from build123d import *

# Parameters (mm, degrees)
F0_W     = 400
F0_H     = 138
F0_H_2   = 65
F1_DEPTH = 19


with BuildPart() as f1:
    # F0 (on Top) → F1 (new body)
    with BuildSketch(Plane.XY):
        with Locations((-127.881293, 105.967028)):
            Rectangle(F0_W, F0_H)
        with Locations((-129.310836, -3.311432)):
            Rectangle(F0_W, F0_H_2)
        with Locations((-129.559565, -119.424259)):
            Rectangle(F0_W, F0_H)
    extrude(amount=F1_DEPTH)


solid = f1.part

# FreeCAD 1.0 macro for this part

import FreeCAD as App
import Part
import Sketcher
from FreeCAD import Vector


def add_polygon(sketch, points):
    """Adds a closed chain of lines whose ends are joined by coincident constraints."""
    first, n = sketch.GeometryCount, len(points)
    for a, b in zip(points, points[1:] + points[:1]):
        sketch.addGeometry(Part.LineSegment(App.Vector(*a, 0), App.Vector(*b, 0)), False)
    for i in range(n):
        sketch.addConstraint(Sketcher.Constraint("Coincident", first + i, 2, first + (i + 1) % n, 1))

doc = App.newDocument("Part")
params = doc.addObject("Spreadsheet::Sheet", "Params")
for row, (alias, value) in enumerate([
    ("sketch1_width", "400 mm"),
    ("sketch1_height", "138 mm"),
    ("sketch1_height2", "65 mm"),
    ("pad1_length", "19 mm"),
], start=1):
    params.set(f"A{row}", alias)
    params.set(f"B{row}", "=" + value)
    params.setAlias(f"B{row}", alias)

body = doc.addObject("PartDesign::Body", "Body")
body.AllowCompound = True

sketch1 = body.newObject("Sketcher::SketchObject", "Sketch")
sketch1.AttachmentSupport = (doc.getObject("XY_Plane"), [""])
sketch1.MapMode = "FlatFace"
add_polygon(sketch1, [(-327.881293, 174.967028), (-327.881293, 36.967028), (72.118707, 36.967028), (72.118707, 174.967028)])
add_polygon(sketch1, [(-329.310836, 29.188568), (-329.310836, -35.811432), (70.689164, -35.811432), (70.689164, 29.188568)])
add_polygon(sketch1, [(-329.559565, -50.424259), (-329.559565, -188.424259), (70.440435, -188.424259), (70.440435, -50.424259)])
sketch1.addConstraint([
    Sketcher.Constraint("Vertical", 0),
    Sketcher.Constraint("Horizontal", 1),
    Sketcher.Constraint("Vertical", 2),
    Sketcher.Constraint("Horizontal", 3),
    Sketcher.Constraint("Vertical", 4),
    Sketcher.Constraint("Horizontal", 5),
    Sketcher.Constraint("Vertical", 6),
    Sketcher.Constraint("Horizontal", 7),
    Sketcher.Constraint("Vertical", 8),
    Sketcher.Constraint("Horizontal", 9),
    Sketcher.Constraint("Vertical", 10),
    Sketcher.Constraint("Horizontal", 11),
    Sketcher.Constraint("Equal", 3, 5),
    Sketcher.Constraint("Equal", 7, 9),
    Sketcher.Constraint("Equal", 2, 8),
    Sketcher.Constraint("DistanceX", 1, 1, 1, 2, 400.0),
    Sketcher.Constraint("DistanceY", 0, 2, 0, 1, 138.0),
    Sketcher.Constraint("DistanceY", 4, 2, 4, 1, 65.0),
    Sketcher.Constraint("DistanceY", -1, 1, 2, 2, 174.967028),
    Sketcher.Constraint("DistanceY", -1, 1, 6, 2, 29.188568),
    Sketcher.Constraint("DistanceY", 8, 2, -1, 1, 188.424259),
    Sketcher.Constraint("DistanceX", 8, 2, 4, 2, 0.248729),
    Sketcher.Constraint("DistanceX", 8, 2, 0, 2, 1.678272),
    Sketcher.Constraint("DistanceX", 0, 2, -1, 1, 327.881293),
])
sketch1.setExpression("Constraints[27]", "Params.sketch1_width")
sketch1.setExpression("Constraints[28]", "Params.sketch1_height")
sketch1.setExpression("Constraints[29]", "Params.sketch1_height2")
pad1 = body.newObject("PartDesign::Pad", "Pad")
pad1.Profile = sketch1
pad1.setExpression("Length", "Params.pad1_length")

doc.recompute()
